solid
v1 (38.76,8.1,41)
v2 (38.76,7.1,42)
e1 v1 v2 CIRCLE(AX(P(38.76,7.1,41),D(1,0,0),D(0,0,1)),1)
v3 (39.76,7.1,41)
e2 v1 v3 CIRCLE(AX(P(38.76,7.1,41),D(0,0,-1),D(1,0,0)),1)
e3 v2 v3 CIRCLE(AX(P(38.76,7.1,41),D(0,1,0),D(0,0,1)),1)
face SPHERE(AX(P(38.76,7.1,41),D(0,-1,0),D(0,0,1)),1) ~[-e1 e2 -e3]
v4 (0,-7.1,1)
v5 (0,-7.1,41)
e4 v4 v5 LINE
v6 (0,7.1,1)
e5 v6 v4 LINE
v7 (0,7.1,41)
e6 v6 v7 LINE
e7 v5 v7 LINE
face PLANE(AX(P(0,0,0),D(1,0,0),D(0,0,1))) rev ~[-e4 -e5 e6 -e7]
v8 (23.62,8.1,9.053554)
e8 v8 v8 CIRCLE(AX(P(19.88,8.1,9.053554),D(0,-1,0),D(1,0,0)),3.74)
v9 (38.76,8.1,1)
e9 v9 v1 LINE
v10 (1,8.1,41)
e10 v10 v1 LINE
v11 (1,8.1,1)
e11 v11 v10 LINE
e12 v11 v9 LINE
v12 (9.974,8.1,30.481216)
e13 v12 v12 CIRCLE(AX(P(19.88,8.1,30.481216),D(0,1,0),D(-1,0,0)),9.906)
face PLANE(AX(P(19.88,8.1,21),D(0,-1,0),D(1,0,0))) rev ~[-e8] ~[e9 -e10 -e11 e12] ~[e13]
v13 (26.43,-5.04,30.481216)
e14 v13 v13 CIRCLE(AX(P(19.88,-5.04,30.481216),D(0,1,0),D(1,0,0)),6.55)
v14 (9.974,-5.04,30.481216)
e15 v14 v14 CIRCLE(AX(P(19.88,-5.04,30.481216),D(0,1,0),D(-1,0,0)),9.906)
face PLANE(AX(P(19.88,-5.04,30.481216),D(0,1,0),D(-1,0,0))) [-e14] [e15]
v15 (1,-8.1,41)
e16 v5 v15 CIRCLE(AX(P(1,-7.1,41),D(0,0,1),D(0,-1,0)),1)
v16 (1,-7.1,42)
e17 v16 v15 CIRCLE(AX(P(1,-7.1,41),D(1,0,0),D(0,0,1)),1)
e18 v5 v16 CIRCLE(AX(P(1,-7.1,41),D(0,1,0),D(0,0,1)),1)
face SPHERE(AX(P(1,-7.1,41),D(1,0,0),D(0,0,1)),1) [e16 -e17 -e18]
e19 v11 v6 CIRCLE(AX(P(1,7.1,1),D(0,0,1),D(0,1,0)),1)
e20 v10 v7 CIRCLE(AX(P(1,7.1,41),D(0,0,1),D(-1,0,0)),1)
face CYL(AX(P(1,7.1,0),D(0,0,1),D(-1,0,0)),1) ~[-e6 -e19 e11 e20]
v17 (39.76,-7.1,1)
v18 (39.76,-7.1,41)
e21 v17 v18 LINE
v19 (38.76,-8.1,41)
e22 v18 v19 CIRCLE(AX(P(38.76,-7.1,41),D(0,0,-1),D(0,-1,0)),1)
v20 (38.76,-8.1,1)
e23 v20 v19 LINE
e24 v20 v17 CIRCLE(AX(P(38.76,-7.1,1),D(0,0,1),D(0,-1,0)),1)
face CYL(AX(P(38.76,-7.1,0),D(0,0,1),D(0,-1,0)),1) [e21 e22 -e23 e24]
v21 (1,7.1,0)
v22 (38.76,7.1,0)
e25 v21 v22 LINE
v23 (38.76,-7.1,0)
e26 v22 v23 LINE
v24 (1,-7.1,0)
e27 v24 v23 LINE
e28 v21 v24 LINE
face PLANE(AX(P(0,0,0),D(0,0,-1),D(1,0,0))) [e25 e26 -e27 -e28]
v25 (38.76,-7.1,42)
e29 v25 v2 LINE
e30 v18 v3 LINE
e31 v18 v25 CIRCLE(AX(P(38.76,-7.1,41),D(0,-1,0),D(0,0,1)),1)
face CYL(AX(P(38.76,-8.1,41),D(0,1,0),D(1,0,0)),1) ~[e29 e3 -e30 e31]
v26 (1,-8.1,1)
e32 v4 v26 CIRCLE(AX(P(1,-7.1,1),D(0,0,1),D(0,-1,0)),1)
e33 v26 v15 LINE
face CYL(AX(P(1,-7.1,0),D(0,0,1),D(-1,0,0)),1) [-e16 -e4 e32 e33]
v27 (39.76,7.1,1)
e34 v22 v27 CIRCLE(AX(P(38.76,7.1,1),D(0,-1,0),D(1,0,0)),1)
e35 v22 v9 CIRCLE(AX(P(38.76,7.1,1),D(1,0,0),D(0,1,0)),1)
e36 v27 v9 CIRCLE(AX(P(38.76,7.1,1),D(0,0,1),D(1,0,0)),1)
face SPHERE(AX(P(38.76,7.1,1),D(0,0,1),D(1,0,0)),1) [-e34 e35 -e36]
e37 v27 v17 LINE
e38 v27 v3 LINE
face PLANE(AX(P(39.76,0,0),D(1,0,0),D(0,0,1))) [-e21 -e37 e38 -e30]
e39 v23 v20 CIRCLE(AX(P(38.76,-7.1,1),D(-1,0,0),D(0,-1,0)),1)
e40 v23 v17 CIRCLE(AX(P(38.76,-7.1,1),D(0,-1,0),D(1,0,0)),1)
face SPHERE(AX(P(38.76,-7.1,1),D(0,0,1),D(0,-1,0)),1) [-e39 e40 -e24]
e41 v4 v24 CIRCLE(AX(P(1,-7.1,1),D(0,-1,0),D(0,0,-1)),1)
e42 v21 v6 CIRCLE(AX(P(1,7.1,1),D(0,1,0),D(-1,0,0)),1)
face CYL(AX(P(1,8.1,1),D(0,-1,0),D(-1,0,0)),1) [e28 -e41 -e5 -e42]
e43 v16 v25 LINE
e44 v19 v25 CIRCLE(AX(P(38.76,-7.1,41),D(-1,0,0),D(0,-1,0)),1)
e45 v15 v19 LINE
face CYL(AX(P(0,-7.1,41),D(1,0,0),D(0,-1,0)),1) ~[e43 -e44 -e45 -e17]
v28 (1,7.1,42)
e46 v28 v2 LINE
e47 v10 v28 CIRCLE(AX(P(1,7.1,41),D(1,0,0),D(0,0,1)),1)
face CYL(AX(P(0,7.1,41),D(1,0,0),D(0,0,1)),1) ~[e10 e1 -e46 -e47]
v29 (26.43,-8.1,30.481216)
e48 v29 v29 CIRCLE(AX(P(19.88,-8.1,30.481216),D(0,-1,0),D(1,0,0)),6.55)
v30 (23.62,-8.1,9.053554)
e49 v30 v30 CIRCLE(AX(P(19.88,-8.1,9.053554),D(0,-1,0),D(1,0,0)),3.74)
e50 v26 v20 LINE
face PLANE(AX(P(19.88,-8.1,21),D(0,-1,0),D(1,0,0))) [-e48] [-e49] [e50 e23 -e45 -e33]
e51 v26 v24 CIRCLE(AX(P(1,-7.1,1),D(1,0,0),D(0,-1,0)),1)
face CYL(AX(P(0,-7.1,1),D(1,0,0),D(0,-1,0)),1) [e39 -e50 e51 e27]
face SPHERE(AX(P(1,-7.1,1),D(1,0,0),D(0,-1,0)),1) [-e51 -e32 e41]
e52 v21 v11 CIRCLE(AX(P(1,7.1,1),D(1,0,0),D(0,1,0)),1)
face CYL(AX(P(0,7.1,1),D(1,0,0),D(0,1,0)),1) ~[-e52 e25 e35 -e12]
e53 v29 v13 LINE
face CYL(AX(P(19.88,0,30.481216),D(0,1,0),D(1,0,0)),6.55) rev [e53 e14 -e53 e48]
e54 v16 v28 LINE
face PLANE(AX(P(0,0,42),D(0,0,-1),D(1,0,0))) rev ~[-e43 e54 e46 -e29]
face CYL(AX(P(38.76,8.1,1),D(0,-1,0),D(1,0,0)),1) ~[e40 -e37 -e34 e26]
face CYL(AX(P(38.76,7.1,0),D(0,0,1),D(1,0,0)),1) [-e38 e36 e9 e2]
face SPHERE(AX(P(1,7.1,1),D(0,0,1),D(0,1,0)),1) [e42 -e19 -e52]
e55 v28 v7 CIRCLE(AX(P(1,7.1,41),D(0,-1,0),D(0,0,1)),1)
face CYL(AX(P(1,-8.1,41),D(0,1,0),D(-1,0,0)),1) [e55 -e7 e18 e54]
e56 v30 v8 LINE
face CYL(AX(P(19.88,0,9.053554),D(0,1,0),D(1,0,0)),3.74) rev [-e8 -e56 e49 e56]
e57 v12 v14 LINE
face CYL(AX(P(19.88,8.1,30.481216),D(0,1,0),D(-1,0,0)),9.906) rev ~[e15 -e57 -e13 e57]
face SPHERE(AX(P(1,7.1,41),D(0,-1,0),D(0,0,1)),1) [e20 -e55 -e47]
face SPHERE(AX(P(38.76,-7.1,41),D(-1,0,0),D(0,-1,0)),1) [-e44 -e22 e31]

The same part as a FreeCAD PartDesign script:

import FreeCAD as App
import Part
import Sketcher

V = App.Vector
Q = App.Units.Quantity


def edges_at(feature, points):
    """Names of the edges that pass closest to the given points."""
    edges = feature.Shape.Edges
    near = lambda p: min(range(len(edges)), key=lambda i: edges[i].distToShape(Part.Vertex(*p))[0])
    return sorted({f"Edge{near(p) + 1}" for p in points})

doc = App.newDocument("Part")
body = doc.addObject("PartDesign::Body", "Body")

sketch1 = body.newObject("Sketcher::SketchObject", "Sketch")
sketch1.AttachmentSupport = (doc.getObject("XZ_Plane"), [""])
sketch1.MapMode = "FlatFace"
sketch1.addGeometry([
    Part.LineSegment(V(0, 42, 0), V(0, 0, 0)),
    Part.LineSegment(V(0, 0, 0), V(39.76, 0, 0)),
    Part.LineSegment(V(39.76, 0, 0), V(39.76, 42, 0)),
    Part.LineSegment(V(39.76, 42, 0), V(0, 42, 0)),
    Part.Circle(V(19.88, 9.053554, 0), V(0, 0, 1), 3.74),
    Part.Circle(V(19.88, 30.481216, 0), V(0, 0, 1), 6.55),
], False)
sketch1.addConstraint([
    Sketcher.Constraint("Coincident", 0, 2, 1, 1),
    Sketcher.Constraint("Coincident", 1, 2, 2, 1),
    Sketcher.Constraint("Coincident", 2, 2, 3, 1),
    Sketcher.Constraint("Coincident", 3, 2, 0, 1),
    Sketcher.Constraint("Vertical", 0),
    Sketcher.Constraint("Horizontal", 1),
    Sketcher.Constraint("Vertical", 2),
    Sketcher.Constraint("Horizontal", 3),
    Sketcher.Constraint("Coincident", 0, 2, -1, 1),
    Sketcher.Constraint("Vertical", 4, 3, 5, 3),
    Sketcher.Constraint("Diameter", 5, Q("13.1 mm")),
    Sketcher.Constraint("Diameter", 4, Q("7.48 mm")),
    Sketcher.Constraint("DistanceY", 0, 2, 0, 1, Q("42 mm")),
    Sketcher.Constraint("DistanceX", 1, 1, 1, 2, Q("39.76 mm")),
    Sketcher.Constraint("DistanceX", -1, 1, 4, 3, Q("19.88 mm")),
    Sketcher.Constraint("DistanceY", 4, 3, 5, 3, Q("21.427662 mm")),
    Sketcher.Constraint("DistanceY", -1, 1, 4, 3, Q("9.053554 mm")),
])
pad1 = body.newObject("PartDesign::Pad", "Pad")
pad1.Profile = sketch1
pad1.Length = 16.2
pad1.Midplane = True

sketch2 = body.newObject("Sketcher::SketchObject", "Sketch001")
sketch2.AttachmentSupport = (doc.getObject("XZ_Plane"), [""])
sketch2.MapMode = "FlatFace"
sketch2.AttachmentOffset = App.Placement(V(0, 0, -8.1), App.Rotation())
sketch2.addGeometry([
    Part.Circle(V(19.88, 30.481216, 0), V(0, 0, 1), 9.906),
    Part.Circle(V(19.88, 30.481216, 0), V(0, 0, 1), 6.55),
], False)
sketch2.addConstraint([
    Sketcher.Constraint("Coincident", 1, 3, 0, 3),
    Sketcher.Constraint("Diameter", 1, Q("13.1 mm")),
    Sketcher.Constraint("Diameter", 0, Q("19.812 mm")),
    Sketcher.Constraint("DistanceX", -1, 1, 0, 3, Q("19.88 mm")),
    Sketcher.Constraint("DistanceY", -1, 1, 0, 3, Q("30.481216 mm")),
])
pocket1 = body.newObject("PartDesign::Pocket", "Pocket")
pocket1.Profile = sketch2
pocket1.Length = 13.14
pocket1.Reversed = True
doc.recompute()

fillet = body.newObject("PartDesign::Fillet", "Fillet")
fillet.Base = (pocket1, edges_at(pocket1, [
    (19.88, -8.1, 42),
    (39.76, -8.1, 21),
    (19.88, -8.1, 0),
    (39.76, 0, 42),
    (0, 0, 42),
    (19.88, 8.1, 42),
    (39.76, 8.1, 21),
    (39.76, 0, 0),
    (0, -8.1, 21),
    (0, 8.1, 21),
    (19.88, 8.1, 0),
    (0, 0, 0),
]))
fillet.Radius = 1

doc.recompute()
